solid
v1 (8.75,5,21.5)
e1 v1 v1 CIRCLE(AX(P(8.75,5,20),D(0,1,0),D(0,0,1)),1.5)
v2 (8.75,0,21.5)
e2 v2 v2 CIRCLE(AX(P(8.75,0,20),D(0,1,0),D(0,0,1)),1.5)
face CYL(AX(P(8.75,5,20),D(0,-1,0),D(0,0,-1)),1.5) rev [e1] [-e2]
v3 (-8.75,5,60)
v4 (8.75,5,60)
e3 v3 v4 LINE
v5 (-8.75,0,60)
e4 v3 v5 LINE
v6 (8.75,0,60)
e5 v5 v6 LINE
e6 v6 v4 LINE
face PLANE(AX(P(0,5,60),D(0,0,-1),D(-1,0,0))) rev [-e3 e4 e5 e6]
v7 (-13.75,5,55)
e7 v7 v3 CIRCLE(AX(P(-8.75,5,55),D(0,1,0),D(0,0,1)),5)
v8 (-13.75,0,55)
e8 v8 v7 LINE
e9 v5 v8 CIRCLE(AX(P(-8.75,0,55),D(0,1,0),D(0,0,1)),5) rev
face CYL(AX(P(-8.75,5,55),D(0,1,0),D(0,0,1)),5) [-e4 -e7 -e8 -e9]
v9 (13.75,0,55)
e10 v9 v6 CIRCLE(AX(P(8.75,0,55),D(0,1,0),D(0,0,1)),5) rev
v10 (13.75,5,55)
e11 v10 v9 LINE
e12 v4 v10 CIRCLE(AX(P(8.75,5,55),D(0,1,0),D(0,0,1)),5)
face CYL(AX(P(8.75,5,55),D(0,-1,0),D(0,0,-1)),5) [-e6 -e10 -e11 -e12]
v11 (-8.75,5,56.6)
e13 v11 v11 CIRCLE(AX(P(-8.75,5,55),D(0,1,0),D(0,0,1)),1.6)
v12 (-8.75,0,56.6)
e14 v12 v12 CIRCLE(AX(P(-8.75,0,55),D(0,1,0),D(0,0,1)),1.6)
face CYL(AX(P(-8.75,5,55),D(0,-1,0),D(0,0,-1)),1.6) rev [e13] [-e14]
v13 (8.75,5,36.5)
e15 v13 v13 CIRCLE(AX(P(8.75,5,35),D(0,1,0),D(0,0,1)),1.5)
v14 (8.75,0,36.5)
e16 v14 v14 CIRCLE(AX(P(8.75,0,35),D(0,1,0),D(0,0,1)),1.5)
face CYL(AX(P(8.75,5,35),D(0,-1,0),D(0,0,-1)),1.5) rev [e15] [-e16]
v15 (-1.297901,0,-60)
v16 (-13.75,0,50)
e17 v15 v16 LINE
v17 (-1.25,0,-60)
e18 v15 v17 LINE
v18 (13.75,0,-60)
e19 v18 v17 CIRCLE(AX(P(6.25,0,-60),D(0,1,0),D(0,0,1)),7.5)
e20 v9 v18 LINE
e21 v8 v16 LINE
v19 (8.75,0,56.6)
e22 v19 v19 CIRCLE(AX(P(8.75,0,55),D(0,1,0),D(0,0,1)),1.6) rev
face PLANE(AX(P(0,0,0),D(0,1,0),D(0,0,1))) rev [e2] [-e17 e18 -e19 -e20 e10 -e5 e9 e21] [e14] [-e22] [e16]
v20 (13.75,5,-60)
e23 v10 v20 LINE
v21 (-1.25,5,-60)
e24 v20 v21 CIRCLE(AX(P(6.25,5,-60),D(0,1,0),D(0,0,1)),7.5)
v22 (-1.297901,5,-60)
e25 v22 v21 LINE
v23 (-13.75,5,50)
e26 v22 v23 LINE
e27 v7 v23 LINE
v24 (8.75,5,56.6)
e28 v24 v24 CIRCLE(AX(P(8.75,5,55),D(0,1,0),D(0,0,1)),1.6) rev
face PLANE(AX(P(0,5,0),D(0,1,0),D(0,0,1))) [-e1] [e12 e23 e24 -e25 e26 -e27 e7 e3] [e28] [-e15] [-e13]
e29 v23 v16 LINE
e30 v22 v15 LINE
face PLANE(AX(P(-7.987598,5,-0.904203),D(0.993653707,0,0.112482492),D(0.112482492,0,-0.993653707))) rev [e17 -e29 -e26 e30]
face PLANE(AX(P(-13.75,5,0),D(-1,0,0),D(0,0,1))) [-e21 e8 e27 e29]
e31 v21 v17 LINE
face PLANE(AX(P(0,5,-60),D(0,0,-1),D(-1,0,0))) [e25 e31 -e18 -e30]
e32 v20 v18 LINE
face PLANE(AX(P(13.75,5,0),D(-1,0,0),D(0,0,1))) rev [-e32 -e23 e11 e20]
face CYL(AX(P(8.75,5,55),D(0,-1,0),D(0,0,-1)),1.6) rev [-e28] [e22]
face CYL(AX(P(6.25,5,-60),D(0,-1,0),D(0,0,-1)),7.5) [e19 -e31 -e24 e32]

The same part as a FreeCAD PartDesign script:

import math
import FreeCAD as App
import Part
import Sketcher

V = App.Vector
Q = App.Units.Quantity


def edges_at(feature, points):
    """Names of the edges that pass closest to the given points."""
    edges = feature.Shape.Edges
    near = lambda p: min(range(len(edges)), key=lambda i: edges[i].distToShape(Part.Vertex(*p))[0])
    return sorted({f"Edge{near(p) + 1}" for p in points})

doc = App.newDocument("Part")
body = doc.addObject("PartDesign::Body", "Body")

# Sketch on XZ plane
sketch1 = doc.addObject("Sketcher::SketchObject", "Sketch")
body.addObject(sketch1)
sketch1.AttachmentSupport = (doc.XZ_Plane, [""])
sketch1.MapMode = "FlatFace"
sketch1.addGeometry(Part.LineSegment(V(-13.75, 50, 0), V(-13.75, 60, 0)), False)
sketch1.addGeometry(Part.LineSegment(V(-13.75, 60, 0), V(13.75, 60, 0)), False)
sketch1.addGeometry(Part.LineSegment(V(13.75, 60, 0), V(13.75, -60, 0)), False)
sketch1.addGeometry(Part.ArcOfCircle(Part.Circle(V(6.25, -60, 0), V(0, 0, 1), 7.5), math.radians(180), math.radians(360)), False)
sketch1.addGeometry(Part.LineSegment(V(-1.25, -60, 0), V(-1.298, -60, 0)), False)
sketch1.addGeometry(Part.LineSegment(V(-1.298, -60, 0), V(-13.75, 50, 0)), False)
sketch1.addGeometry(Part.Circle(V(-8.75, 55, 0), V(0, 0, 1), 1.6), False)
sketch1.addGeometry(Part.Circle(V(8.75, 55, 0), V(0, 0, 1), 1.6), False)
sketch1.addGeometry(Part.Circle(V(8.75, 35, 0), V(0, 0, 1), 1.5), False)
sketch1.addGeometry(Part.Circle(V(8.75, 20, 0), V(0, 0, 1), 1.5), False)
sketch1.addConstraint(Sketcher.Constraint("Coincident", 0, 2, 1, 1))
sketch1.addConstraint(Sketcher.Constraint("Coincident", 1, 2, 2, 1))
sketch1.addConstraint(Sketcher.Constraint("Tangent", 2, 2, 3, 2))
sketch1.addConstraint(Sketcher.Constraint("Coincident", 3, 1, 4, 1))
sketch1.addConstraint(Sketcher.Constraint("Coincident", 4, 2, 5, 1))
sketch1.addConstraint(Sketcher.Constraint("Coincident", 5, 2, 0, 1))
sketch1.addConstraint(Sketcher.Constraint("Vertical", 0))
sketch1.addConstraint(Sketcher.Constraint("Horizontal", 1))
sketch1.addConstraint(Sketcher.Constraint("Vertical", 2))
sketch1.addConstraint(Sketcher.Constraint("Horizontal", 4))
sketch1.addConstraint(Sketcher.Constraint("Equal", 6, 7))
sketch1.addConstraint(Sketcher.Constraint("Equal", 8, 9))
sketch1.addConstraint(Sketcher.Constraint("Symmetric", 0, 2, 2, 2, -1, 1))
sketch1.addConstraint(Sketcher.Constraint("Symmetric", 6, 3, 7, 3, -2))
sketch1.addConstraint(Sketcher.Constraint("Horizontal", 2, 2, 3, 1))
sketch1.addConstraint(Sketcher.Constraint("Vertical", 7, 3, 8, 3))
sketch1.addConstraint(Sketcher.Constraint("Vertical", 8, 3, 9, 3))
sketch1.addConstraint(Sketcher.Constraint("Diameter", 8, Q("3 mm")))
sketch1.addConstraint(Sketcher.Constraint("Diameter", 6, Q("3.2 mm")))
sketch1.addConstraint(Sketcher.Constraint("Radius", 3, Q("7.5 mm")))
sketch1.addConstraint(Sketcher.Constraint("DistanceY", 0, 1, 0, 2, Q("10 mm")))
sketch1.addConstraint(Sketcher.Constraint("DistanceY", 2, 2, 2, 1, Q("120 mm")))
sketch1.addConstraint(Sketcher.Constraint("DistanceX", 1, 1, 1, 2, Q("27.5 mm")))
sketch1.addConstraint(Sketcher.Constraint("DistanceY", -1, 1, 6, 3, Q("55 mm")))
sketch1.addConstraint(Sketcher.Constraint("DistanceY", -1, 1, 8, 3, Q("35 mm")))
sketch1.addConstraint(Sketcher.Constraint("DistanceY", -1, 1, 9, 3, Q("20 mm")))
sketch1.addConstraint(Sketcher.Constraint("DistanceX", 6, 3, 3, 3, Q("15 mm")))
sketch1.addConstraint(Sketcher.Constraint("DistanceX", 4, 2, 4, 1, Q("0.047901 mm")))
pad1 = doc.addObject("PartDesign::Pad", "Pad")
body.addObject(pad1)
pad1.Profile = sketch1
pad1.Length = 5
pad1.Reversed = True
doc.recompute()

fillet = doc.addObject("PartDesign::Fillet", "Fillet")
body.addObject(fillet)
fillet.Base = (pad1, edges_at(pad1, [(13.75, 2.5, 60), (-13.75, 2.5, 60)]))
fillet.Radius = 5

doc.recompute()
